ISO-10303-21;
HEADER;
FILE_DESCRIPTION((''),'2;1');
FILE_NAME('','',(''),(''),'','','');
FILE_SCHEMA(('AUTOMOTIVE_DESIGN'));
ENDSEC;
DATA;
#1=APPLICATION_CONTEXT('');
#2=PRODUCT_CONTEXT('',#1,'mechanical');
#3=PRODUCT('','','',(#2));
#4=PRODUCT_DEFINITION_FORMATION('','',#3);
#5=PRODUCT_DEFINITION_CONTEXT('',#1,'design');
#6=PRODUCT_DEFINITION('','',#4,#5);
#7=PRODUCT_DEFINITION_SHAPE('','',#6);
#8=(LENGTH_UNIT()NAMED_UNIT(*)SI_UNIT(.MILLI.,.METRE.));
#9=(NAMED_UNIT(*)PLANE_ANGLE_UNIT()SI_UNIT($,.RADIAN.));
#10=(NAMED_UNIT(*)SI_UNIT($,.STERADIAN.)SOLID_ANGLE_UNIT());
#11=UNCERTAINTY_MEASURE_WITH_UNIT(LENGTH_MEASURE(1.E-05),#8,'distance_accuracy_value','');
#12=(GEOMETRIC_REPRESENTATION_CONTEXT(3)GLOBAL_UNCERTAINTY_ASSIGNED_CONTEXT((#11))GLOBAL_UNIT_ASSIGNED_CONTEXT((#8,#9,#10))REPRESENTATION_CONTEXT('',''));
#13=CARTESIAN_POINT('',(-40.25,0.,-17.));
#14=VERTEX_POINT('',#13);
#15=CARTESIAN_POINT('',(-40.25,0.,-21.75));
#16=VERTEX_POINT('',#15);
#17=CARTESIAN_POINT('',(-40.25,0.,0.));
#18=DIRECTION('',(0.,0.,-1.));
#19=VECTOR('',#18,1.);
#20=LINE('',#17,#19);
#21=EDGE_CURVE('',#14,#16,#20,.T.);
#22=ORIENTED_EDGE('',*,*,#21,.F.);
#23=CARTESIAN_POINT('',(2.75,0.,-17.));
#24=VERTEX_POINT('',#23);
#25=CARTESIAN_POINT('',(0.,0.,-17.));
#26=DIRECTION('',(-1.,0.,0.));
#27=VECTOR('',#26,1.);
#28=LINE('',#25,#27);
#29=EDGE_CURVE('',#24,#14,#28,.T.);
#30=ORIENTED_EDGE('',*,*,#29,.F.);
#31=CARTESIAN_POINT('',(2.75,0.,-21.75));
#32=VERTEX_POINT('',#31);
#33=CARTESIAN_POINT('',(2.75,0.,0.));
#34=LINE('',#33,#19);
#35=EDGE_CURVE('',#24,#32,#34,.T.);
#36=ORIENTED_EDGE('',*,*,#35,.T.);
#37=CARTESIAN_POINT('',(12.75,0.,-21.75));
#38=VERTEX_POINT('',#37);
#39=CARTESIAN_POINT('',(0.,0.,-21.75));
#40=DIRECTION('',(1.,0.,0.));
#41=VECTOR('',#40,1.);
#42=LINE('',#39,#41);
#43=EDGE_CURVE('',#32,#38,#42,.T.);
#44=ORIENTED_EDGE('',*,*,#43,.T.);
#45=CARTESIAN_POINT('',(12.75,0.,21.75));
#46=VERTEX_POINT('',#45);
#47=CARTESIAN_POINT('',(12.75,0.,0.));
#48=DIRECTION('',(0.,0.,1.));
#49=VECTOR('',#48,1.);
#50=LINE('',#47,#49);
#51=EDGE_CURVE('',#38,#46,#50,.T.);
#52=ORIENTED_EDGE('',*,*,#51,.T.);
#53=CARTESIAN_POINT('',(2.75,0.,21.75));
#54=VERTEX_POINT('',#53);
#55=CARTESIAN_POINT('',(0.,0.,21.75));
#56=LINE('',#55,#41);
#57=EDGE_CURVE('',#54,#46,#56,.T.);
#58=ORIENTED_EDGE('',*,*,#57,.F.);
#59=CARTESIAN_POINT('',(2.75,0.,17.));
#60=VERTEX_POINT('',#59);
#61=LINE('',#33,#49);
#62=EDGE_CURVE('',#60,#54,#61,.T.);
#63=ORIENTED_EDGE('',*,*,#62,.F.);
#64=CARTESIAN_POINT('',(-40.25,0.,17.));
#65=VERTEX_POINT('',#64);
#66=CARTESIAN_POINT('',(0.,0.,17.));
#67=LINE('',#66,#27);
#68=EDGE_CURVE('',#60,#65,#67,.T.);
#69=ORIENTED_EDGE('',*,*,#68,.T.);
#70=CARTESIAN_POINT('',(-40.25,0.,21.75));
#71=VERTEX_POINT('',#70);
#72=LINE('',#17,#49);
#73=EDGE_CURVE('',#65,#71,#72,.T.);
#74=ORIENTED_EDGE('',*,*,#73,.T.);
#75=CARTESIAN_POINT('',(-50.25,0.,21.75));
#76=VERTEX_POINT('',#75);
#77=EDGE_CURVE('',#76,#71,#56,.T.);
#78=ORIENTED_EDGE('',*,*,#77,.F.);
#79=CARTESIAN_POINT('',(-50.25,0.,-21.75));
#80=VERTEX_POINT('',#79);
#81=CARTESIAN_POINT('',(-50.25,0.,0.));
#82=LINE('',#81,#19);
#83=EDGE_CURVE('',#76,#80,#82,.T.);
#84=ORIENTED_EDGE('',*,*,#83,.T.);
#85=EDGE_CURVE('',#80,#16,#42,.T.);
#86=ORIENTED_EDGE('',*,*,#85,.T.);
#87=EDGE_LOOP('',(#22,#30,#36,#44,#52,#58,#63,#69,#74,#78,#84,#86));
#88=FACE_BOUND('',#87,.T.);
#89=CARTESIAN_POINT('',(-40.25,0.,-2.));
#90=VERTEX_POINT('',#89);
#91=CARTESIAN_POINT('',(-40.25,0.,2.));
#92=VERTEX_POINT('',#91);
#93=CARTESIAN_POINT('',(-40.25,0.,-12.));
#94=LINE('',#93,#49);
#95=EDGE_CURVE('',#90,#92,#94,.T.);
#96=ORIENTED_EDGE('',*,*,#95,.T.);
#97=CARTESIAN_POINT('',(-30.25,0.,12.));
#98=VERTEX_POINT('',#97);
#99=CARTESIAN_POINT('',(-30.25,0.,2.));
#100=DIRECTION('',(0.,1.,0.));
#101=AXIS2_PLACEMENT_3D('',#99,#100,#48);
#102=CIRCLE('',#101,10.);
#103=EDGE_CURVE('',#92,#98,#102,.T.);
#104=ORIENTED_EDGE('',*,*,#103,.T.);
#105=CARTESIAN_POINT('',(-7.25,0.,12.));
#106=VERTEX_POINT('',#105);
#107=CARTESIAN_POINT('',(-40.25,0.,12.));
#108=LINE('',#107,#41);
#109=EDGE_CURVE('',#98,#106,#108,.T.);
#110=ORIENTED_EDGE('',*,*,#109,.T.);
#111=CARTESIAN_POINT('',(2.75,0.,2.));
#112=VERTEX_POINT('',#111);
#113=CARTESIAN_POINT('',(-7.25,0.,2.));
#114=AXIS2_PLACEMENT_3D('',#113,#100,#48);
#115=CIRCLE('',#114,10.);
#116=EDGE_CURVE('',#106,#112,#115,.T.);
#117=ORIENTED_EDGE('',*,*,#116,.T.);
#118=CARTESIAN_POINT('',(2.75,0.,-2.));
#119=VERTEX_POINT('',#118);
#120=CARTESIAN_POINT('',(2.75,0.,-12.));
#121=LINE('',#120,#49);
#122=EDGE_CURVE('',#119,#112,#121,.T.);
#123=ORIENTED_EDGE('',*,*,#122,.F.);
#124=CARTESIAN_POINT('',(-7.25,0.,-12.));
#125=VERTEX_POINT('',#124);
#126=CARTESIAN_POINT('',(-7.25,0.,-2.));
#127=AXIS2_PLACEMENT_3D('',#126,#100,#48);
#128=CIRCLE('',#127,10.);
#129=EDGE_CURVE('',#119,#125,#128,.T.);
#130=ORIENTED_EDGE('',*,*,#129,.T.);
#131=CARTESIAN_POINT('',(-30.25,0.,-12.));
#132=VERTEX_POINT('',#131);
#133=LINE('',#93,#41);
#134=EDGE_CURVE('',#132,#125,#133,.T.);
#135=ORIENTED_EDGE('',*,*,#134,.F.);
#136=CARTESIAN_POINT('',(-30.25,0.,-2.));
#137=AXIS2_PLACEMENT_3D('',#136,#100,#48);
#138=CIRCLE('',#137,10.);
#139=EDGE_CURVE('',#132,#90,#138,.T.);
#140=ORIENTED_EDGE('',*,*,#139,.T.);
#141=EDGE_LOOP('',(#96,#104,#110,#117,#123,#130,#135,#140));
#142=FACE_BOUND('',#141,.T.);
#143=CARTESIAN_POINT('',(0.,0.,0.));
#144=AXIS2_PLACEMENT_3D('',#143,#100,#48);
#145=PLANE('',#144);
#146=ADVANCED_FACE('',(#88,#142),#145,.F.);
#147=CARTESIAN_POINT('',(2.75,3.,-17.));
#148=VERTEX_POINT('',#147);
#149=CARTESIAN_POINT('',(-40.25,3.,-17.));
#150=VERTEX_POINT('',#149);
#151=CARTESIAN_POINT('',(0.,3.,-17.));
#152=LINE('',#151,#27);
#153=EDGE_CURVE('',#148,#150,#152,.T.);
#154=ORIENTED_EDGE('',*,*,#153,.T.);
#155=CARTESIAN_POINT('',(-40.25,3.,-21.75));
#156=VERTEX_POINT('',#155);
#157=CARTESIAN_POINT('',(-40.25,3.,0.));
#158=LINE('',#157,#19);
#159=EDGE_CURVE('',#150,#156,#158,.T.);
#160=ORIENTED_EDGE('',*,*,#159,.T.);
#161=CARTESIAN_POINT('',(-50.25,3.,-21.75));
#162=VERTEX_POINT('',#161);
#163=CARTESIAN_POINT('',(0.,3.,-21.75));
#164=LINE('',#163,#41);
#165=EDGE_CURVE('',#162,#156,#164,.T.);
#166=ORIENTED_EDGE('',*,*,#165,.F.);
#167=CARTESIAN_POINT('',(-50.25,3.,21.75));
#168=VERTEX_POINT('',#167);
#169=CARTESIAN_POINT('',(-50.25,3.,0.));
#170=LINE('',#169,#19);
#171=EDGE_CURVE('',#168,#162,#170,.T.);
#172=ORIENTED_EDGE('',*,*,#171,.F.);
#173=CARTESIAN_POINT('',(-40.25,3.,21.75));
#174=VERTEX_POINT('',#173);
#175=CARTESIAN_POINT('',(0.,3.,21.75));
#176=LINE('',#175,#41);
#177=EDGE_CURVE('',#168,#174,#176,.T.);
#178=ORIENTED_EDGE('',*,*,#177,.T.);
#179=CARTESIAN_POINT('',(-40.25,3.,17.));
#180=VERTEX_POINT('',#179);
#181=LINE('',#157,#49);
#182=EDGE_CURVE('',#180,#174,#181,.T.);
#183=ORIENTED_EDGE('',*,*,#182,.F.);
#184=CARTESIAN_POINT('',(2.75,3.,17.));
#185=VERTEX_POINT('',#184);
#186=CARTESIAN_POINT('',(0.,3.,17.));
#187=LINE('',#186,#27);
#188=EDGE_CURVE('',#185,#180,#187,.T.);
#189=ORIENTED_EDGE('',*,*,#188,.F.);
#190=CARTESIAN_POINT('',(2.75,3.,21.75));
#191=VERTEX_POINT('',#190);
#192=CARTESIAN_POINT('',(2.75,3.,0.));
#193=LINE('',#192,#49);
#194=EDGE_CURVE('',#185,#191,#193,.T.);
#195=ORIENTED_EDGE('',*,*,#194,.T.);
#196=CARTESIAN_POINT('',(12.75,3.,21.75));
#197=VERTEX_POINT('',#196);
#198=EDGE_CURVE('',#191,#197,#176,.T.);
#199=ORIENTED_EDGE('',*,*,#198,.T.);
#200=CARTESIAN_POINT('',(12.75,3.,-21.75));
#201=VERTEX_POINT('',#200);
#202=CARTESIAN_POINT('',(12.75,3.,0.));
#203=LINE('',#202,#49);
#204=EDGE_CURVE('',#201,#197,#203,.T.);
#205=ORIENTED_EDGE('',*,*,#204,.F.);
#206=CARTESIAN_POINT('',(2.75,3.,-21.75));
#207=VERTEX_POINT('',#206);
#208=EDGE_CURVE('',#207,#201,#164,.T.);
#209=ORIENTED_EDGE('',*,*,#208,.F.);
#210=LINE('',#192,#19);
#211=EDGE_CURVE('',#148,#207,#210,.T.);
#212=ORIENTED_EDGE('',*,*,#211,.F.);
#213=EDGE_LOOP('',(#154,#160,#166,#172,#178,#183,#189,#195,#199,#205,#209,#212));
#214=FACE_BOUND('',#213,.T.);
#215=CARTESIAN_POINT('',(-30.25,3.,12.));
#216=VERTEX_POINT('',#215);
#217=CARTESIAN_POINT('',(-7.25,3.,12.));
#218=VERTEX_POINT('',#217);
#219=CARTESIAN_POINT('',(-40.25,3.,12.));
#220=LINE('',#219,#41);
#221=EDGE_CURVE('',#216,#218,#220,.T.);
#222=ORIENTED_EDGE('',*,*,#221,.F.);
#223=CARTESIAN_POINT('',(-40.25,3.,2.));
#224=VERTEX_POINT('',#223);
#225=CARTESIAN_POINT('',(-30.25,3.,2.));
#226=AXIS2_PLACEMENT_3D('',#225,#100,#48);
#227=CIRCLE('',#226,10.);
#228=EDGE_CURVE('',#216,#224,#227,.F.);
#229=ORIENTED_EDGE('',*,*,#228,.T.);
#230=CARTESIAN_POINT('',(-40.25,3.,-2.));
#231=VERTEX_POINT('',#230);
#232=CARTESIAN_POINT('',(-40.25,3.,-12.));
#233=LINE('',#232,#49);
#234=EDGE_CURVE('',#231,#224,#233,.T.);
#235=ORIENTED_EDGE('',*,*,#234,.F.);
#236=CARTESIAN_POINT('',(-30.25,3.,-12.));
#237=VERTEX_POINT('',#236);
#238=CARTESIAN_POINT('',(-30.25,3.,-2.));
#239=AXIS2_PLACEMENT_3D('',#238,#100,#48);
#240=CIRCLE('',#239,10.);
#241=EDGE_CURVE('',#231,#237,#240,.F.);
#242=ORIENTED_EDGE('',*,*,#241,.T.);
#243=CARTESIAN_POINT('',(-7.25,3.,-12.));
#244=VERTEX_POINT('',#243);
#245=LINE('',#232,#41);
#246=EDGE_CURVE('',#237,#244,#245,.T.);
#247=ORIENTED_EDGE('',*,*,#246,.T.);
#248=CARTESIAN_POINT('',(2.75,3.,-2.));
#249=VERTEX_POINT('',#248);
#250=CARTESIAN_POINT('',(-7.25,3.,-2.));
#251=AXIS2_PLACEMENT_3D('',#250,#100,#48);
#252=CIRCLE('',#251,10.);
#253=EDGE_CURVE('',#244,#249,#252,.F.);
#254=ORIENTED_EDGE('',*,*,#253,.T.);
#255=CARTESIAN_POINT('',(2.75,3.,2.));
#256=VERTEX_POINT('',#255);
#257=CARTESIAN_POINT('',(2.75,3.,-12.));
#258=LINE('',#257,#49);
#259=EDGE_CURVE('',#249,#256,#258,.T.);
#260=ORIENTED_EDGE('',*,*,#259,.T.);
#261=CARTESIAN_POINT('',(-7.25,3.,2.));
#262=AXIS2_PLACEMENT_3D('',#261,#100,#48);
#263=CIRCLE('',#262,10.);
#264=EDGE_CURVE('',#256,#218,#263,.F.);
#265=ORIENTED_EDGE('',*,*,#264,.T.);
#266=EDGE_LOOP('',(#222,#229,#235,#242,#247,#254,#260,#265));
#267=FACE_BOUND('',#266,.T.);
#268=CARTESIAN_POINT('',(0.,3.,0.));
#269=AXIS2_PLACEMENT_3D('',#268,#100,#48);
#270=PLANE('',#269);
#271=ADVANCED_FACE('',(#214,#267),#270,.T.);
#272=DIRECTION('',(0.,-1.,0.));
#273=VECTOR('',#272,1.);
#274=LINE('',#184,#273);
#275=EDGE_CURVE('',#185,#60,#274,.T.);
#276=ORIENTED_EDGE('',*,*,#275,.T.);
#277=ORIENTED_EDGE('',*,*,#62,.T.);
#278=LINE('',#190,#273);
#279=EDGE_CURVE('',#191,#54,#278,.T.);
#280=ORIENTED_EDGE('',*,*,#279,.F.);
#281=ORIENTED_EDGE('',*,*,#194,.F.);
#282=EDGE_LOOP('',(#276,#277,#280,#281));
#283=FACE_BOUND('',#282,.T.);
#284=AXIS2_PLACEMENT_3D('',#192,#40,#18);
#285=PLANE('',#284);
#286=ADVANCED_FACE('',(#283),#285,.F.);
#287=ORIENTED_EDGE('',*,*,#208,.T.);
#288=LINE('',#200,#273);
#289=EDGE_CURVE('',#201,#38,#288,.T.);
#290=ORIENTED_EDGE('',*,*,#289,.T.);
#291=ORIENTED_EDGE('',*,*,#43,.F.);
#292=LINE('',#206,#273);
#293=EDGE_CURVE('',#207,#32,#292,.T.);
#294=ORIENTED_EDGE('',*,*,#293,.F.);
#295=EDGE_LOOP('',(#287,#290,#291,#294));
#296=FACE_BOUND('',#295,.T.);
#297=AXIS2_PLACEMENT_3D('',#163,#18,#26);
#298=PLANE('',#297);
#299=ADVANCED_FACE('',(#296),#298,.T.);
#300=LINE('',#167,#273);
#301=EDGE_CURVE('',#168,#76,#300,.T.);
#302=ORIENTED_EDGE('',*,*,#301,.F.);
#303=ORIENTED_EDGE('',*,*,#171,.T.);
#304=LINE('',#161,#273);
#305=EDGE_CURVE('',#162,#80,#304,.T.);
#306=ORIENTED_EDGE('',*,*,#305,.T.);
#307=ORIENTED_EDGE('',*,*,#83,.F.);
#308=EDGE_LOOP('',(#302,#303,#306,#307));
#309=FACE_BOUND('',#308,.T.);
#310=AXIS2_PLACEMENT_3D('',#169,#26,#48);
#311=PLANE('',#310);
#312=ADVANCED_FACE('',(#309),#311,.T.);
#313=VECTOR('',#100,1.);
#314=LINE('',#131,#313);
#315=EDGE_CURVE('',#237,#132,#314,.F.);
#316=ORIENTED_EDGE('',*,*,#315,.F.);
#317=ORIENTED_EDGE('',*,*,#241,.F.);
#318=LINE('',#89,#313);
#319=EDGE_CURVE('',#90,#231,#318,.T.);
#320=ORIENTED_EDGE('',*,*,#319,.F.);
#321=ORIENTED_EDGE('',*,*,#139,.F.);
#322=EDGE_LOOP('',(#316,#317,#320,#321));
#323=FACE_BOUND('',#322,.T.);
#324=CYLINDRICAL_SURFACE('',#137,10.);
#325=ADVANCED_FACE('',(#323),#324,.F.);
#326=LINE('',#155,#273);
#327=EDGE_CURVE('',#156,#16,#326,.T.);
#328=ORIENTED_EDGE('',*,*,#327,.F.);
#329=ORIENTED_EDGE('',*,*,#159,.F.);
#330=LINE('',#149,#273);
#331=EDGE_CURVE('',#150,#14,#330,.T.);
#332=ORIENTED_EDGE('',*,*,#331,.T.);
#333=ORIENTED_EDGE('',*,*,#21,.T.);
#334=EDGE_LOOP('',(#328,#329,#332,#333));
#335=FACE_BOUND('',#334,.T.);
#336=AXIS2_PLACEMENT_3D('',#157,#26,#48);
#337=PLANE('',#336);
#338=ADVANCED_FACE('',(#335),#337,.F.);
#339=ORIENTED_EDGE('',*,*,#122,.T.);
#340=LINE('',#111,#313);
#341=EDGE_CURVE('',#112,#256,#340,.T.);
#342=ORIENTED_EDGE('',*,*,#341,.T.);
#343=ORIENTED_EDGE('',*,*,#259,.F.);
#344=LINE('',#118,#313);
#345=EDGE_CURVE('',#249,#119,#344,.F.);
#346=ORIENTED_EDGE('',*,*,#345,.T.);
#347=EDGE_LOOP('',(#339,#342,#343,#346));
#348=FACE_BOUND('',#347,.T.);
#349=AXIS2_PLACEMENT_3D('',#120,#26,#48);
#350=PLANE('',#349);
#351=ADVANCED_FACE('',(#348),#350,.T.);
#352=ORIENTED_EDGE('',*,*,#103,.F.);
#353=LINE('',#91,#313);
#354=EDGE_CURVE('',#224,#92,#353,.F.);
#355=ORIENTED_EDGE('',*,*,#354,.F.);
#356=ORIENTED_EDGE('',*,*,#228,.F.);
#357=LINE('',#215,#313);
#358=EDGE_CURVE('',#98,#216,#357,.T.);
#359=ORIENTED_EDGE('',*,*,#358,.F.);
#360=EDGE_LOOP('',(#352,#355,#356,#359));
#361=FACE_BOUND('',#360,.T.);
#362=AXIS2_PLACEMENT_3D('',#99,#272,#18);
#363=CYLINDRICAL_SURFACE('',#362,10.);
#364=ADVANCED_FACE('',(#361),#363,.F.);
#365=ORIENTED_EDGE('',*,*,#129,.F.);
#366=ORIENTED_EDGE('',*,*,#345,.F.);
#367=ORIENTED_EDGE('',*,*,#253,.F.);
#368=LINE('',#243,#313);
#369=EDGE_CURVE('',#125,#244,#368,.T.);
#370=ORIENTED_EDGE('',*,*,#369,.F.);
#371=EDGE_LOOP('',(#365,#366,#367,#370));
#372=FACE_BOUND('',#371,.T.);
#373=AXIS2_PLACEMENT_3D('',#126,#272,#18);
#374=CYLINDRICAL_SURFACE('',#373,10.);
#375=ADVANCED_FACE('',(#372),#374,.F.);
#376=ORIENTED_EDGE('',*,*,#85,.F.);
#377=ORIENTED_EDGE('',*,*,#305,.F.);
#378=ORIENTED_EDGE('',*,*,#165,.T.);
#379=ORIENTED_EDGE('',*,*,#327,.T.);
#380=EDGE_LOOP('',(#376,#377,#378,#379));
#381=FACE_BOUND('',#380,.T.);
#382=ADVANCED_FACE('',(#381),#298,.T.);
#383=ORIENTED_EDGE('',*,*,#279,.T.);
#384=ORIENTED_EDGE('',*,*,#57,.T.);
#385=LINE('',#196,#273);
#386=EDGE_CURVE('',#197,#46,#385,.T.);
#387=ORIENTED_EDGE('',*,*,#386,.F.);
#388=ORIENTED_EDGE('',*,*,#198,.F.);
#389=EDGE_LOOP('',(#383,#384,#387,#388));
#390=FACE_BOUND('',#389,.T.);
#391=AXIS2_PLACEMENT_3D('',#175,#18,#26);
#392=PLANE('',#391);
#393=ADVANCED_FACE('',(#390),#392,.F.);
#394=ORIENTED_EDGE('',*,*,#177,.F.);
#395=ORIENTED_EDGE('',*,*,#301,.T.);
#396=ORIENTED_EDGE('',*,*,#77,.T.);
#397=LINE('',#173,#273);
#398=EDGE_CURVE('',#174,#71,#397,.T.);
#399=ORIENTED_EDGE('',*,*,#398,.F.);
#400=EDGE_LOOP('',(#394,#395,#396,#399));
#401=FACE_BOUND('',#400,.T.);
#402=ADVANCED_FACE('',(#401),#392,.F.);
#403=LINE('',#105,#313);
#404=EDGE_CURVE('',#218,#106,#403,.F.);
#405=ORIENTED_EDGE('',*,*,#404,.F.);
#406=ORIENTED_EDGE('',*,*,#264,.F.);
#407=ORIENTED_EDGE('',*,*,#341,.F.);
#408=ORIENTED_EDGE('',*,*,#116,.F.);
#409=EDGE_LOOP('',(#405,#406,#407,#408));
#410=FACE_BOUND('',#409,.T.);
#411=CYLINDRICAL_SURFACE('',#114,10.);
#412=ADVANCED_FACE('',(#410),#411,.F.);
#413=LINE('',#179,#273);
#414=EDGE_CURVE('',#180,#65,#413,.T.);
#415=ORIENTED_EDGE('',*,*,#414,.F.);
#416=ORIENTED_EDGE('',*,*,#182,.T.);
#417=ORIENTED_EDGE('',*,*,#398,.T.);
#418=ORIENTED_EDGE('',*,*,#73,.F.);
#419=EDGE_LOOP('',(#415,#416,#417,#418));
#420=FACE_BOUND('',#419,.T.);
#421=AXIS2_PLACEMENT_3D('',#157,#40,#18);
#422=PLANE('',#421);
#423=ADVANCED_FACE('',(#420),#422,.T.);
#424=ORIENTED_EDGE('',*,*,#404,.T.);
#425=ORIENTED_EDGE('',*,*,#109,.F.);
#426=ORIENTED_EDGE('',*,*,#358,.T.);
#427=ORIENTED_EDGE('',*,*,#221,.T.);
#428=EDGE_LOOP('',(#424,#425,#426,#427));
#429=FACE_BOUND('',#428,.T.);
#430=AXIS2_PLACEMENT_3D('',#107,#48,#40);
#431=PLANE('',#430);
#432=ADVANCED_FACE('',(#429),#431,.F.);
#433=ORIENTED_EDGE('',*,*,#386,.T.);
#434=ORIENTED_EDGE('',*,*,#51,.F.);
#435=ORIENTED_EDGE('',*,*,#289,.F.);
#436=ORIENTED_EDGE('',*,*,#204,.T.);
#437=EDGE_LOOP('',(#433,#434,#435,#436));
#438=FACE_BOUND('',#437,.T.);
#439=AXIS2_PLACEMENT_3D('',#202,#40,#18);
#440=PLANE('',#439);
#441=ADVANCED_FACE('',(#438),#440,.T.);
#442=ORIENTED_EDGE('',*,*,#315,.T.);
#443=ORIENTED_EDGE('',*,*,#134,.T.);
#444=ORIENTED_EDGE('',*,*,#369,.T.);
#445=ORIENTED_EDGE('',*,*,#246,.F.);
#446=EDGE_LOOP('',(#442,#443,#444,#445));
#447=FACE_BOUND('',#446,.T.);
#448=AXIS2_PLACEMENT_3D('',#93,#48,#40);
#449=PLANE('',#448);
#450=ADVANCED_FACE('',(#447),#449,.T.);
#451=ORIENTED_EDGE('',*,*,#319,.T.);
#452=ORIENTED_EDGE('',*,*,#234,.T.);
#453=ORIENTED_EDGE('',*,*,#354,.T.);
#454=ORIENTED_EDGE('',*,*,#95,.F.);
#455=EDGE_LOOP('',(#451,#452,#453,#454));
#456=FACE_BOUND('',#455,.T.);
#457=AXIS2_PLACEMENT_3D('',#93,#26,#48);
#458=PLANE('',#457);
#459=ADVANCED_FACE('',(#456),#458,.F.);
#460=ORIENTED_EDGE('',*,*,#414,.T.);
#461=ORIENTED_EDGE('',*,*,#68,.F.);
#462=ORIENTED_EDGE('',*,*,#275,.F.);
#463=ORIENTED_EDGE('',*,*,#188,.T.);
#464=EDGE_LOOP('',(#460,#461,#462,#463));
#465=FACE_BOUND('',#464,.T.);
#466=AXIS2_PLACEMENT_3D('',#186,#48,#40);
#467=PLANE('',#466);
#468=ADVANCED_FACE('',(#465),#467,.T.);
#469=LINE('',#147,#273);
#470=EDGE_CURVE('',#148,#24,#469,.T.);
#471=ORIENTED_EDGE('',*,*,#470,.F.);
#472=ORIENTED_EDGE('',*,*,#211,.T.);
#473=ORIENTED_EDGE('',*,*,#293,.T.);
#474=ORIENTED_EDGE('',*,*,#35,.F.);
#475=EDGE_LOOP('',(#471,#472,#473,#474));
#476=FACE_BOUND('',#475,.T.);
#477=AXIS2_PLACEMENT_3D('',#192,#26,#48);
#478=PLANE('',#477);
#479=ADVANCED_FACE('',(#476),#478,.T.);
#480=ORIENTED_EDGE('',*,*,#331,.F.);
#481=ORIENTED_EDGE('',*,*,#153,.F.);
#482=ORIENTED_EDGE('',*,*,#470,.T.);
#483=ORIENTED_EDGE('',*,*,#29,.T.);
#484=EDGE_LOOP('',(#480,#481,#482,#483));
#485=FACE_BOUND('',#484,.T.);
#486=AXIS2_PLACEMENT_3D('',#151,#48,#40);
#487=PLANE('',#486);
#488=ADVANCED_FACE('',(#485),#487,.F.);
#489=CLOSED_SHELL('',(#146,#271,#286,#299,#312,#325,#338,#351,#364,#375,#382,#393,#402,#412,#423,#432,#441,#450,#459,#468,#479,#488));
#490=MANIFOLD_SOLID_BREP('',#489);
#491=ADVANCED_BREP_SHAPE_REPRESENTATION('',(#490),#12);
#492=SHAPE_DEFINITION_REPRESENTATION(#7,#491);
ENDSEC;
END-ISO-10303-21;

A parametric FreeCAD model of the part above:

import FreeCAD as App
import Part
import Sketcher


def edges_at(feature, points):
    """Names of the edges that pass closest to the given points."""
    edges = feature.Shape.Edges
    near = lambda p: min(range(len(edges)), key=lambda i: edges[i].distToShape(Part.Vertex(*p))[0])
    return sorted({f"Edge{near(p) + 1}" for p in points})


def add_polygon(sketch, points):
    """Adds a closed chain of lines whose ends are joined by coincident constraints."""
    first, n = sketch.GeometryCount, len(points)
    for a, b in zip(points, points[1:] + points[:1]):
        sketch.addGeometry(Part.LineSegment(App.Vector(*a, 0), App.Vector(*b, 0)), False)
    for i in range(n):
        sketch.addConstraint(Sketcher.Constraint("Coincident", first + i, 2, first + (i + 1) % n, 1))

doc = App.newDocument("Part")
body = doc.addObject("PartDesign::Body", "Body")

sketch1 = body.newObject("Sketcher::SketchObject", "Sketch")
sketch1.AttachmentSupport = (doc.getObject("XZ_Plane"), [""])
sketch1.MapMode = "FlatFace"
add_polygon(sketch1, [(12.8, -21.8), (2.8, -21.8), (2.8, -17), (-40.2, -17), (-40.2, -21.8), (-50.2, -21.8), (-50.2, 21.8), (-40.2, 21.8), (-40.2, 17), (2.8, 17), (2.8, 21.8), (12.8, 21.8)])
sketch1.addConstraint([
    Sketcher.Constraint("Horizontal", 0),
    Sketcher.Constraint("Vertical", 1),
    Sketcher.Constraint("Horizontal", 2),
    Sketcher.Constraint("Vertical", 3),
    Sketcher.Constraint("Horizontal", 4),
    Sketcher.Constraint("Vertical", 5),
    Sketcher.Constraint("Horizontal", 6),
    Sketcher.Constraint("Vertical", 7),
    Sketcher.Constraint("Horizontal", 8),
    Sketcher.Constraint("Vertical", 9),
    Sketcher.Constraint("Horizontal", 10),
    Sketcher.Constraint("Vertical", 11),
    Sketcher.Constraint("Symmetric", 3, 2, 6, 2, -1),
    Sketcher.Constraint("Symmetric", 1, 2, 8, 2, -1),
    Sketcher.Constraint("Horizontal", 0, 2, 3, 2),
    Sketcher.Constraint("Horizontal", 6, 2, 9, 2),
    Sketcher.Constraint("Equal", 0, 4),
    Sketcher.Constraint("DistanceX", 0, 2, 0, 1, 10.0),
    Sketcher.Constraint("DistanceX", 2, 2, 2, 1, 43.0),
    Sketcher.Constraint("DistanceY", 5, 1, 5, 2, 43.5),
    Sketcher.Constraint("DistanceY", 1, 2, -1, 1, 17.0),
    Sketcher.Constraint("DistanceX", -1, 1, 0, 2, 2.75),
])
pad1 = body.newObject("PartDesign::Pad", "Pad")
pad1.Profile = sketch1
pad1.Length = 3
pad1.Reversed = True

sketch2 = body.newObject("Sketcher::SketchObject", "Sketch001")
sketch2.AttachmentSupport = (doc.getObject("XZ_Plane"), [""])
sketch2.MapMode = "FlatFace"
sketch2.AttachmentOffset = App.Placement(App.Vector(0, 0, -3), App.Rotation())
add_polygon(sketch2, [(-40, -12), (-40, 12), (3, 12), (3, -12)])
sketch2.addConstraint([
    Sketcher.Constraint("Vertical", 0),
    Sketcher.Constraint("Horizontal", 1),
    Sketcher.Constraint("Vertical", 2),
    Sketcher.Constraint("Horizontal", 3),
    Sketcher.Constraint("DistanceX", 1, 1, 1, 2, 43.0),
    Sketcher.Constraint("DistanceY", 0, 1, 0, 2, 24.0),
    Sketcher.Constraint("DistanceY", -1, 1, 0, 2, 12.0),
    Sketcher.Constraint("DistanceX", 0, 2, -1, 1, 40.25),
])
pocket1 = body.newObject("PartDesign::Pocket", "Pocket")
pocket1.Profile = sketch2
pocket1.Length = 3
pocket1.Reversed = True
doc.recompute()

fillet = body.newObject("PartDesign::Fillet", "Fillet")
fillet.Base = (pocket1, edges_at(pocket1, [
    (2.75, 1.5, 12),
    (-40.25, 1.5, 12),
    (-40.25, 1.5, -12),
    (2.75, 1.5, -12),
]))
fillet.Radius = 10

doc.recompute()
